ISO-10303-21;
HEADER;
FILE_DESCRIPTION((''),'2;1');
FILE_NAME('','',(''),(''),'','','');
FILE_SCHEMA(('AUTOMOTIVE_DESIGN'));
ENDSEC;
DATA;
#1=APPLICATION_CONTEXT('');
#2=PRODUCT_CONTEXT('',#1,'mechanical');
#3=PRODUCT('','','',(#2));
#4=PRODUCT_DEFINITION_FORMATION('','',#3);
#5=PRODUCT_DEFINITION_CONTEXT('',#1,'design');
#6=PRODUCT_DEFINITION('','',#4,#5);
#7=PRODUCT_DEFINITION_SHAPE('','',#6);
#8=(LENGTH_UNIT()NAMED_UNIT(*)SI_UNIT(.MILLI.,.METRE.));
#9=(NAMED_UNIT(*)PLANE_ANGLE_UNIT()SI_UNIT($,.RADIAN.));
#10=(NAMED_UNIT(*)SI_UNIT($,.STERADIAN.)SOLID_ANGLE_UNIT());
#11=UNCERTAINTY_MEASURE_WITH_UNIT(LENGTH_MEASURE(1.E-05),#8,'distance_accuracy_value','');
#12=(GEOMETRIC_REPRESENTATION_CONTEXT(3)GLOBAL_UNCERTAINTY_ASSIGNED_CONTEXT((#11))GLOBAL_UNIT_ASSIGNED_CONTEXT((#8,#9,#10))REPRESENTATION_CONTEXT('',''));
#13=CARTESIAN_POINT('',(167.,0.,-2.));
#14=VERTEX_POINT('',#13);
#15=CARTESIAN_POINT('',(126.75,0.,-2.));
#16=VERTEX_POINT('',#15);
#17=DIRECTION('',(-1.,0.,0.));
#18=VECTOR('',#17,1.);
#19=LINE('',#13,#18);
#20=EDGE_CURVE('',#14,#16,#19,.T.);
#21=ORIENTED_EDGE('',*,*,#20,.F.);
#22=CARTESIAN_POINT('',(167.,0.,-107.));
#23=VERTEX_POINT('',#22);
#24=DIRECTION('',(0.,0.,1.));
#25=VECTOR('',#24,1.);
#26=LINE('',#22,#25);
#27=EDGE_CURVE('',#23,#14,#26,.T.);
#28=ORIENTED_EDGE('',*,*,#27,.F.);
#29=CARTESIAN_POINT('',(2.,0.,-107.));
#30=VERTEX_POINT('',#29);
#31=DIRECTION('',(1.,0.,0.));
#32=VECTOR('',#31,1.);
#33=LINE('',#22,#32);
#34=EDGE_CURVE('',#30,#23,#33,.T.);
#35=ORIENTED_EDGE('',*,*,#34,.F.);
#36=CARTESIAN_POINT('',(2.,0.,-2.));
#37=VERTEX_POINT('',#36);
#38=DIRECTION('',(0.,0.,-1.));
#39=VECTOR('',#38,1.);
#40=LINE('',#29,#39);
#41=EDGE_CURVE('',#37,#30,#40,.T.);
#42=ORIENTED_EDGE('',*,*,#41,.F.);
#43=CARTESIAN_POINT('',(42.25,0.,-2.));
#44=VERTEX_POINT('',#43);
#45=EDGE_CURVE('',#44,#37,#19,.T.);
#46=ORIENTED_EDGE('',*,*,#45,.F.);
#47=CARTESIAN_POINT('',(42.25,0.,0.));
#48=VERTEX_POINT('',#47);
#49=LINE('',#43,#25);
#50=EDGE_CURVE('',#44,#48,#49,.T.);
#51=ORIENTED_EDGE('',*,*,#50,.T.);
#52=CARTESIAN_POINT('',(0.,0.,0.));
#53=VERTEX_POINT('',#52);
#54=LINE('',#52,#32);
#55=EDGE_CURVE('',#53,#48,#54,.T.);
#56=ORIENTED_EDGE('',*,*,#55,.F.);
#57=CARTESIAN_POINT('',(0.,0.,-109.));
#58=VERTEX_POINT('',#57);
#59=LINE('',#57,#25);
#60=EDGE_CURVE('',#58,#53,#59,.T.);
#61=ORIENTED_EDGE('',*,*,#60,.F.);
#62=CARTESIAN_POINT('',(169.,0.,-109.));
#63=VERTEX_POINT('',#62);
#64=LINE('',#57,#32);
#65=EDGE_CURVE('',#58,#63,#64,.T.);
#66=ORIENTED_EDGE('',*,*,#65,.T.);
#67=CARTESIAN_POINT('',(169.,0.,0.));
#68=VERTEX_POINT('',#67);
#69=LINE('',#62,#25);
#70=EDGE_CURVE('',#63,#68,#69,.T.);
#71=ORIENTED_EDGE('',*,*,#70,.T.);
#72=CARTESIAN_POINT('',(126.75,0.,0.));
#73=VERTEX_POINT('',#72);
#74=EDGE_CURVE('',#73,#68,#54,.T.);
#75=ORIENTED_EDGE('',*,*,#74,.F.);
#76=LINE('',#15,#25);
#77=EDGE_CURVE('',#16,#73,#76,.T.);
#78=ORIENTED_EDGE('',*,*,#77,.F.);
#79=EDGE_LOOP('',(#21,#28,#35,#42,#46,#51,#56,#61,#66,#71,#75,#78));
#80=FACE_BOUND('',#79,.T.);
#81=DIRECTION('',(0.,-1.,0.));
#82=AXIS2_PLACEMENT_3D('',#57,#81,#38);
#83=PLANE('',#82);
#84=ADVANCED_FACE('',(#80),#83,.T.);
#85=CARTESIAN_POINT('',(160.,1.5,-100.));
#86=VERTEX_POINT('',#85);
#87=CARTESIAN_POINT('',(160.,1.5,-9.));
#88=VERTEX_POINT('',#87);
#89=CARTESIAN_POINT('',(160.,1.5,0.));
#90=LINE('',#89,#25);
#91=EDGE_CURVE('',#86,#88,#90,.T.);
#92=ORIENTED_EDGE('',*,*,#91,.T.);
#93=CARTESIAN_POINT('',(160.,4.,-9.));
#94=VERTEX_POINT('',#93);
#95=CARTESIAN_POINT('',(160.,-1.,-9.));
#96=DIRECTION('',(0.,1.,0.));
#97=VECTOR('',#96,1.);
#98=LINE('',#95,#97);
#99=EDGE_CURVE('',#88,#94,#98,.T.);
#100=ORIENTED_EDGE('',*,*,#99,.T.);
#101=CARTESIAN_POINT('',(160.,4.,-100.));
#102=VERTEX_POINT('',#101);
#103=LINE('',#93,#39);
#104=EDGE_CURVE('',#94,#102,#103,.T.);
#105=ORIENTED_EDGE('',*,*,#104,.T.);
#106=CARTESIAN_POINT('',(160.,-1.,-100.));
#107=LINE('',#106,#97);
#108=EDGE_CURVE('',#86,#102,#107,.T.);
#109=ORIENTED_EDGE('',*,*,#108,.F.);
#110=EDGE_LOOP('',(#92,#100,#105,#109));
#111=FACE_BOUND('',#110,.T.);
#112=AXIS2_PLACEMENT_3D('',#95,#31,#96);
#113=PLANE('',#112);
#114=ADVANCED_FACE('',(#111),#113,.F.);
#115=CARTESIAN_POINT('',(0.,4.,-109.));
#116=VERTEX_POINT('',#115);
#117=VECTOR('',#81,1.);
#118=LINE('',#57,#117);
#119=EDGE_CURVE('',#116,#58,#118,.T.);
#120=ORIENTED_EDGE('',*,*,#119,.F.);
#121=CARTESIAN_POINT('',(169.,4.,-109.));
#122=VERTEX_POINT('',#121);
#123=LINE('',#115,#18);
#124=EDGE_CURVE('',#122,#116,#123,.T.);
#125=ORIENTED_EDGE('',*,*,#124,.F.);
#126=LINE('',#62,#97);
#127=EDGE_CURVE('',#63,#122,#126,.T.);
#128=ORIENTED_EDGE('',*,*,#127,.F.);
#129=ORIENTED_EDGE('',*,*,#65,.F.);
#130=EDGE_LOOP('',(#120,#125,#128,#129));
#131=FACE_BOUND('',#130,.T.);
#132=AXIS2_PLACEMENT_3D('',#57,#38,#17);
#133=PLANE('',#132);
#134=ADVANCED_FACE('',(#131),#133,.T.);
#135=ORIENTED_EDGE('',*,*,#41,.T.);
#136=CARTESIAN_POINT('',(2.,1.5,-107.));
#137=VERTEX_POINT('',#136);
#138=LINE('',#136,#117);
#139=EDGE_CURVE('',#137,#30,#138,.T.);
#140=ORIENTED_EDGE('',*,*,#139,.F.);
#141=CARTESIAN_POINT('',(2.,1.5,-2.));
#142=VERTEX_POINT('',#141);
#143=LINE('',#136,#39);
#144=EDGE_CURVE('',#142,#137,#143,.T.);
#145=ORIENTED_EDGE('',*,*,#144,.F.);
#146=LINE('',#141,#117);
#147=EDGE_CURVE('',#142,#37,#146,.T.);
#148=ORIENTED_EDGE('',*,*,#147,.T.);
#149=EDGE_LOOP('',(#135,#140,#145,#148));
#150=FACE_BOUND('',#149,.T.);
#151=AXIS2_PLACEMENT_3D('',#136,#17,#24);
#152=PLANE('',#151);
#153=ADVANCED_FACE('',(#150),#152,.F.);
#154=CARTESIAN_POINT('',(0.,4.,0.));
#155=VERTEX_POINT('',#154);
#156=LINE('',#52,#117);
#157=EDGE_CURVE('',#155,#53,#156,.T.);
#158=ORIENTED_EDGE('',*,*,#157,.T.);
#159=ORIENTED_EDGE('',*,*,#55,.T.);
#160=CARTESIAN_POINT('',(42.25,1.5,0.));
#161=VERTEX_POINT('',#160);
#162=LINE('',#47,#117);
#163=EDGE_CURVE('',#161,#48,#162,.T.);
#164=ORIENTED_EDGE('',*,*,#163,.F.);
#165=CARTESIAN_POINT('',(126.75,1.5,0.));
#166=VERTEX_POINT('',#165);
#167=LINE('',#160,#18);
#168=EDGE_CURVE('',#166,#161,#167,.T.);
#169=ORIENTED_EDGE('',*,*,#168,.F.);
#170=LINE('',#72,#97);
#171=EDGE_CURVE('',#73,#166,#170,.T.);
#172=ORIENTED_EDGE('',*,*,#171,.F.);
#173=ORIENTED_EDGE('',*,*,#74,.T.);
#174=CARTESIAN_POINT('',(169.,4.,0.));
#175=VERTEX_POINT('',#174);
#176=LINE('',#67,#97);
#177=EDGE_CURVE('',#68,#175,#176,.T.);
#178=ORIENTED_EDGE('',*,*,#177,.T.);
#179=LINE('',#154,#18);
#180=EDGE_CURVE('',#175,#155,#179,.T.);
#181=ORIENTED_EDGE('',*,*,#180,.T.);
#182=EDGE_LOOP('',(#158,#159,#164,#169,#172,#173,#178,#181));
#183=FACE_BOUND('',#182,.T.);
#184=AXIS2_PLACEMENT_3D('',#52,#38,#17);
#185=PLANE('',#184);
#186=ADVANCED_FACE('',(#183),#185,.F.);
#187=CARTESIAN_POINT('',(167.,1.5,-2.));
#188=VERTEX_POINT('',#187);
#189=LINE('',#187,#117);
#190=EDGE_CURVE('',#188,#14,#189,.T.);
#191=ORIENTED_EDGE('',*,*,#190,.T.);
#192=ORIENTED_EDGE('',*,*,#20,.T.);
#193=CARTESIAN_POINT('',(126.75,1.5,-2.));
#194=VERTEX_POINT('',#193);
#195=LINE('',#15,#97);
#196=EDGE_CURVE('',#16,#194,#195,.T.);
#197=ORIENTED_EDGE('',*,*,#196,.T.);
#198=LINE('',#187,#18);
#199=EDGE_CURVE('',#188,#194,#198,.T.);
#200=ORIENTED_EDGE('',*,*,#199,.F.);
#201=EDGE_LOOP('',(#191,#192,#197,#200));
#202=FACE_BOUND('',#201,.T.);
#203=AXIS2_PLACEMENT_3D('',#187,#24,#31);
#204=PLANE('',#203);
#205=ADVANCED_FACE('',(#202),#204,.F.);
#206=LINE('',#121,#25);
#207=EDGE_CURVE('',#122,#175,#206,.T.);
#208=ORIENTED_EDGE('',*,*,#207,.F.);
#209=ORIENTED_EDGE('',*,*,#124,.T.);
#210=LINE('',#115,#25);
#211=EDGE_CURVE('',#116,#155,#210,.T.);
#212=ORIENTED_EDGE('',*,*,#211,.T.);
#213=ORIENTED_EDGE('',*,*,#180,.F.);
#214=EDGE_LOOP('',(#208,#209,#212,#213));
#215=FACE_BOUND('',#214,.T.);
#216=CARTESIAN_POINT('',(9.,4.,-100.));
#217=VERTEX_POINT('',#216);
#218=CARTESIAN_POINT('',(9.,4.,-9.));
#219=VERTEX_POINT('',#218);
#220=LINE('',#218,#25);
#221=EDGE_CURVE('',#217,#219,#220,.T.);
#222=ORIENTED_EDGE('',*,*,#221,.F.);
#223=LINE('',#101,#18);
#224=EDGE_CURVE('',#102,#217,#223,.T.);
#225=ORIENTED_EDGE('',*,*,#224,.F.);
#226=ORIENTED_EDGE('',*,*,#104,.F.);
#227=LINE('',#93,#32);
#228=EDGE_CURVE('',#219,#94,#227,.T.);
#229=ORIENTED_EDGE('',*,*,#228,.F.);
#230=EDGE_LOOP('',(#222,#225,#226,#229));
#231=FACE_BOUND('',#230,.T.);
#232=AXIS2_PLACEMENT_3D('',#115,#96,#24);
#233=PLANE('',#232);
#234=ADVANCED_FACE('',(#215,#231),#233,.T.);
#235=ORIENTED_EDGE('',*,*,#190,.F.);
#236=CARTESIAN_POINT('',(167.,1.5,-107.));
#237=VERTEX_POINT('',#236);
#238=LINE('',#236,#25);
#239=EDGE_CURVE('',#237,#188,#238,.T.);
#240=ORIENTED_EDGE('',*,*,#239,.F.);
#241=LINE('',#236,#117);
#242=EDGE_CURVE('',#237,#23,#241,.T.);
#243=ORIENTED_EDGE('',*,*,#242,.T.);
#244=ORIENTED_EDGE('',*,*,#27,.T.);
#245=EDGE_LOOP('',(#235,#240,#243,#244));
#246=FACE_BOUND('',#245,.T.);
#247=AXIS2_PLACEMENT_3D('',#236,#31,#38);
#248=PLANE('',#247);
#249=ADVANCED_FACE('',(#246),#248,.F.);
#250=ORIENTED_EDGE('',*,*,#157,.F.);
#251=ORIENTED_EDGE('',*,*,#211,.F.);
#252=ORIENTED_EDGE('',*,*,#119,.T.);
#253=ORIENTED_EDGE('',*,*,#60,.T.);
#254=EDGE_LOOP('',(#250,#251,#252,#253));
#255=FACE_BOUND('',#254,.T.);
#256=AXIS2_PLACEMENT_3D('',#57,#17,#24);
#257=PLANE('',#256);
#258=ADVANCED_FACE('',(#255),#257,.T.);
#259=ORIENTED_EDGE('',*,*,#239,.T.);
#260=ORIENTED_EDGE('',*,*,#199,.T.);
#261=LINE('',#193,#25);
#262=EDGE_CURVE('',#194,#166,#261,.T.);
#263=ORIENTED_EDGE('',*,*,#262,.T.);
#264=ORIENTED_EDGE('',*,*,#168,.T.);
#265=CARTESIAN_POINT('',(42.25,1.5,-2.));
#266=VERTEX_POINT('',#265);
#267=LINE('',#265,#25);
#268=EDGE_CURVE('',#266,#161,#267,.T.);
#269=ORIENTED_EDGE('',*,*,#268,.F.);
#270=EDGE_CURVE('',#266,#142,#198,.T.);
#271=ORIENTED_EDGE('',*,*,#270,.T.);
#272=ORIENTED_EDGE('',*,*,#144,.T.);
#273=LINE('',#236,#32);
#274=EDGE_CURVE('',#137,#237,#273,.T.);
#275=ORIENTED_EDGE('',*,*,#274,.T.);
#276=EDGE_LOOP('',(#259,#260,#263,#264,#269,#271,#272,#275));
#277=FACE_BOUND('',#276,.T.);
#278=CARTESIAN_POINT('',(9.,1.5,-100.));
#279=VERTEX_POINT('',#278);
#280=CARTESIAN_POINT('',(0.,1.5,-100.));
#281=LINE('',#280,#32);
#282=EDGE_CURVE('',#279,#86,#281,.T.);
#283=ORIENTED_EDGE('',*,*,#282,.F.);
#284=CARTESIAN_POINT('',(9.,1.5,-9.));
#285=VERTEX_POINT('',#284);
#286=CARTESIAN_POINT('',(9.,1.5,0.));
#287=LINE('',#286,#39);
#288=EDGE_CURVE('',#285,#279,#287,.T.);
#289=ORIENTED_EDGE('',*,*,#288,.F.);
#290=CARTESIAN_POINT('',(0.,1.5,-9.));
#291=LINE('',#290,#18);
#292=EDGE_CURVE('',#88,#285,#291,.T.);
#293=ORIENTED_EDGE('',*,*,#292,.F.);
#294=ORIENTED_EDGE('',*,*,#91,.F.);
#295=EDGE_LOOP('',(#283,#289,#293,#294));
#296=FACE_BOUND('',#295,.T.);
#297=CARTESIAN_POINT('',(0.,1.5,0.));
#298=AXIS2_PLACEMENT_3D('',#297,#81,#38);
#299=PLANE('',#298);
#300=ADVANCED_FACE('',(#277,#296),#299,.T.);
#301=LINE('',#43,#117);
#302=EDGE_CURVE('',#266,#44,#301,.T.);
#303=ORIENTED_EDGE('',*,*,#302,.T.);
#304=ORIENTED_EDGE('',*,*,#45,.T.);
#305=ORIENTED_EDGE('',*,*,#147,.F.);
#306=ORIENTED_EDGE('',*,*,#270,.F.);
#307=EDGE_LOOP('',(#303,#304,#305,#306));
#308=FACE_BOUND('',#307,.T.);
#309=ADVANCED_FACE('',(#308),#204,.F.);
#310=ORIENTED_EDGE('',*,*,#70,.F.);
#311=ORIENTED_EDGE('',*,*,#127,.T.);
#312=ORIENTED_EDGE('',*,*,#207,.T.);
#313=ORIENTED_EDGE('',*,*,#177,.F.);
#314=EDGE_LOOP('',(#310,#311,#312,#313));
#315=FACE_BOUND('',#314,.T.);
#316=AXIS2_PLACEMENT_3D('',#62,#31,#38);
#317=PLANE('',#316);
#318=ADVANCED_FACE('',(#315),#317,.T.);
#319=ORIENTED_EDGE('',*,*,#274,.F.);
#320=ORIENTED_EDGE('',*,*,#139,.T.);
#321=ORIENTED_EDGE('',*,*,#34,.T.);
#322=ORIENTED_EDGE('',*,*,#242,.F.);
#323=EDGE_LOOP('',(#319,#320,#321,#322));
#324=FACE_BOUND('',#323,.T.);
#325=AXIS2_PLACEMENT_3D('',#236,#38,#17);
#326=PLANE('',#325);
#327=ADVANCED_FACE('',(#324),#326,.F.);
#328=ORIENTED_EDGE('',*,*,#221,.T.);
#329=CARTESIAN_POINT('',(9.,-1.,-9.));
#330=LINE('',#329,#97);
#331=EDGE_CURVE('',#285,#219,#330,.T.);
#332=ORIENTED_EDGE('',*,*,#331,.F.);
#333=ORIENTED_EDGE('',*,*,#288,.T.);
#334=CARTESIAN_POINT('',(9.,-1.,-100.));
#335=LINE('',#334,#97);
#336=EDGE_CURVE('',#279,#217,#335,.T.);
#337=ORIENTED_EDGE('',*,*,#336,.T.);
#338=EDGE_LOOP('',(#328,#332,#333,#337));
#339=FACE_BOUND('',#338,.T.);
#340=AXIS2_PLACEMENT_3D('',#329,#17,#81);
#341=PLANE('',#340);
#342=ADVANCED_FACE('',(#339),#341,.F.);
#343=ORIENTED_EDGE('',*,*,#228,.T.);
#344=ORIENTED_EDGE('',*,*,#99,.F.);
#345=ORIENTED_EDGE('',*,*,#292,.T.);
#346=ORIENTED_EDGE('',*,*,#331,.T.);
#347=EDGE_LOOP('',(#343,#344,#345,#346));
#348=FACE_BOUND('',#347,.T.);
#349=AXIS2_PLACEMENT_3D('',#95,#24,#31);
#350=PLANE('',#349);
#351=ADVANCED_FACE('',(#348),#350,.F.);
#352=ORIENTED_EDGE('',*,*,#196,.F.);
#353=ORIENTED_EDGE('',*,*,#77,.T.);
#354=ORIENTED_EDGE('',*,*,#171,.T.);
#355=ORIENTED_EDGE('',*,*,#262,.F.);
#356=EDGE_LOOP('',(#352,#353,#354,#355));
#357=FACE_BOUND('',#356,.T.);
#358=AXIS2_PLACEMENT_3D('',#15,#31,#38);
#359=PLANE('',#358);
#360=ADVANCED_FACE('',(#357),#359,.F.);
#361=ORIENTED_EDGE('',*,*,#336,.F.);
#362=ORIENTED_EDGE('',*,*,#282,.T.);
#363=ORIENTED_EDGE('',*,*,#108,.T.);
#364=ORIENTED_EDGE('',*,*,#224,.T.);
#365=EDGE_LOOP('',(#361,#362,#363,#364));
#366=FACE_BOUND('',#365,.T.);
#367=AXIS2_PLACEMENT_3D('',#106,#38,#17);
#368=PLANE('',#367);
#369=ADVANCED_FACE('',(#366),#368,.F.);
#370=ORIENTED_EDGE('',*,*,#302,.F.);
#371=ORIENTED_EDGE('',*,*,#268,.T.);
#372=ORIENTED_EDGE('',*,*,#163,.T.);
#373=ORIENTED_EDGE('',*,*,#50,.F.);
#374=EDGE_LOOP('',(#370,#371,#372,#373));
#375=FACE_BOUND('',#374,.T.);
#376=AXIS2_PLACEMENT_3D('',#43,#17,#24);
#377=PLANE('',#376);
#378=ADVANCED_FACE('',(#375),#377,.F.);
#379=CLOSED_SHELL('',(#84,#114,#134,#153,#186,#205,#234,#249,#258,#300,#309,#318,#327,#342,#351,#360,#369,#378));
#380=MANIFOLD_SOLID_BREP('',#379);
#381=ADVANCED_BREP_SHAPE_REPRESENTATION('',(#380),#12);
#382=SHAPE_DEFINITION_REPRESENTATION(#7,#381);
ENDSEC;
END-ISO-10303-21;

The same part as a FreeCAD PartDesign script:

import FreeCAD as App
import Part
import Sketcher

V = App.Vector

doc = App.newDocument("Part")
body = doc.addObject("PartDesign::Body", "Body")

# Sketch on XY plane
sketch1 = body.newObject("Sketcher::SketchObject", "Sketch")
sketch1.AttachmentSupport = (doc.getObject("XY_Plane"), [""])
sketch1.MapMode = "FlatFace"
sketch1.addGeometry([
    Part.LineSegment(V(0, 4, 0), V(0, 0, 0)),
    Part.LineSegment(V(0, 0, 0), V(169, 0, 0)),
    Part.LineSegment(V(169, 0, 0), V(169, 4, 0)),
    Part.LineSegment(V(169, 4, 0), V(0, 4, 0)),
], False)
sketch1.addConstraint([
    Sketcher.Constraint("Coincident", 0, 2, 1, 1),
    Sketcher.Constraint("Coincident", 1, 2, 2, 1),
    Sketcher.Constraint("Coincident", 2, 2, 3, 1),
    Sketcher.Constraint("Coincident", 3, 2, 0, 1),
    Sketcher.Constraint("Vertical", 0),
    Sketcher.Constraint("Horizontal", 1),
    Sketcher.Constraint("Vertical", 2),
    Sketcher.Constraint("Horizontal", 3),
    Sketcher.Constraint("Coincident", 0, 2, -1, 1),
    Sketcher.Constraint("DistanceX", 1, 1, 1, 2, 169.0),
    Sketcher.Constraint("DistanceY", 0, 2, 0, 1, 4.0),
])
pad1 = body.newObject("PartDesign::Pad", "Pad")
pad1.Profile = sketch1
pad1.Length = 109
pad1.Reversed = True

# Sketch on XZ plane
sketch2 = body.newObject("Sketcher::SketchObject", "Sketch001")
sketch2.AttachmentSupport = (doc.getObject("XZ_Plane"), [""])
sketch2.MapMode = "FlatFace"
sketch2.addGeometry([
    Part.LineSegment(V(2, -2, 0), V(2, -107, 0)),
    Part.LineSegment(V(2, -107, 0), V(167, -107, 0)),
    Part.LineSegment(V(167, -107, 0), V(167, -2, 0)),
    Part.LineSegment(V(167, -2, 0), V(2, -2, 0)),
], False)
sketch2.addConstraint([
    Sketcher.Constraint("Coincident", 0, 2, 1, 1),
    Sketcher.Constraint("Coincident", 1, 2, 2, 1),
    Sketcher.Constraint("Coincident", 2, 2, 3, 1),
    Sketcher.Constraint("Coincident", 3, 2, 0, 1),
    Sketcher.Constraint("Vertical", 0),
    Sketcher.Constraint("Horizontal", 1),
    Sketcher.Constraint("Vertical", 2),
    Sketcher.Constraint("Horizontal", 3),
    Sketcher.Constraint("DistanceX", 1, 1, 1, 2, 165.0),
    Sketcher.Constraint("DistanceY", 0, 2, 0, 1, 105.0),
    Sketcher.Constraint("DistanceX", -1, 1, 0, 2, 2.0),
    Sketcher.Constraint("DistanceY", 0, 2, -1, 1, 107.0),
])
pocket1 = body.newObject("PartDesign::Pocket", "Pocket")
pocket1.Profile = sketch2
pocket1.Length = 1.5

# Sketch on XZ plane
sketch3 = body.newObject("Sketcher::SketchObject", "Sketch002")
sketch3.AttachmentSupport = (doc.getObject("XZ_Plane"), [""])
sketch3.MapMode = "FlatFace"
sketch3.AttachmentOffset = App.Placement(V(0, 0, -4), App.Rotation())
sketch3.addGeometry([
    Part.LineSegment(V(9, -100, 0), V(9, -9, 0)),
    Part.LineSegment(V(9, -9, 0), V(160, -9, 0)),
    Part.LineSegment(V(160, -9, 0), V(160, -100, 0)),
    Part.LineSegment(V(160, -100, 0), V(9, -100, 0)),
], False)
sketch3.addConstraint([
    Sketcher.Constraint("Coincident", 0, 2, 1, 1),
    Sketcher.Constraint("Coincident", 1, 2, 2, 1),
    Sketcher.Constraint("Coincident", 2, 2, 3, 1),
    Sketcher.Constraint("Coincident", 3, 2, 0, 1),
    Sketcher.Constraint("Vertical", 0),
    Sketcher.Constraint("Horizontal", 1),
    Sketcher.Constraint("Vertical", 2),
    Sketcher.Constraint("Horizontal", 3),
    Sketcher.Constraint("DistanceX", 1, 1, 1, 2, 151.0),
    Sketcher.Constraint("DistanceY", 0, 1, 0, 2, 91.0),
    Sketcher.Constraint("DistanceX", -1, 1, 0, 2, 9.0),
    Sketcher.Constraint("DistanceY", 0, 2, -1, 1, 9.0),
])
pocket2 = body.newObject("PartDesign::Pocket", "Pocket001")
pocket2.Profile = sketch3
pocket2.Length = 5
pocket2.Reversed = True

# Sketch on XY plane
sketch4 = body.newObject("Sketcher::SketchObject", "Sketch003")
sketch4.AttachmentSupport = (doc.getObject("XY_Plane"), [""])
sketch4.MapMode = "FlatFace"
sketch4.addGeometry([
    Part.LineSegment(V(42.2, 1.5, 0), V(42.2, 0, 0)),
    Part.LineSegment(V(42.2, 0, 0), V(126.8, 0, 0)),
    Part.LineSegment(V(126.8, 0, 0), V(126.8, 1.5, 0)),
    Part.LineSegment(V(126.8, 1.5, 0), V(42.2, 1.5, 0)),
], False)
sketch4.addConstraint([
    Sketcher.Constraint("Coincident", 0, 2, 1, 1),
    Sketcher.Constraint("Coincident", 1, 2, 2, 1),
    Sketcher.Constraint("Coincident", 2, 2, 3, 1),
    Sketcher.Constraint("Coincident", 3, 2, 0, 1),
    Sketcher.Constraint("Vertical", 0),
    Sketcher.Constraint("Horizontal", 1),
    Sketcher.Constraint("Vertical", 2),
    Sketcher.Constraint("Horizontal", 3),
    Sketcher.Constraint("PointOnObject", 0, 2, -1),
    Sketcher.Constraint("DistanceX", 1, 1, 1, 2, 84.5),
    Sketcher.Constraint("DistanceY", 0, 2, 0, 1, 1.5),
    Sketcher.Constraint("DistanceX", -1, 1, 0, 2, 42.25),
])
pocket3 = body.newObject("PartDesign::Pocket", "Pocket002")
pocket3.Profile = sketch4
pocket3.Length = 2

doc.recompute()
